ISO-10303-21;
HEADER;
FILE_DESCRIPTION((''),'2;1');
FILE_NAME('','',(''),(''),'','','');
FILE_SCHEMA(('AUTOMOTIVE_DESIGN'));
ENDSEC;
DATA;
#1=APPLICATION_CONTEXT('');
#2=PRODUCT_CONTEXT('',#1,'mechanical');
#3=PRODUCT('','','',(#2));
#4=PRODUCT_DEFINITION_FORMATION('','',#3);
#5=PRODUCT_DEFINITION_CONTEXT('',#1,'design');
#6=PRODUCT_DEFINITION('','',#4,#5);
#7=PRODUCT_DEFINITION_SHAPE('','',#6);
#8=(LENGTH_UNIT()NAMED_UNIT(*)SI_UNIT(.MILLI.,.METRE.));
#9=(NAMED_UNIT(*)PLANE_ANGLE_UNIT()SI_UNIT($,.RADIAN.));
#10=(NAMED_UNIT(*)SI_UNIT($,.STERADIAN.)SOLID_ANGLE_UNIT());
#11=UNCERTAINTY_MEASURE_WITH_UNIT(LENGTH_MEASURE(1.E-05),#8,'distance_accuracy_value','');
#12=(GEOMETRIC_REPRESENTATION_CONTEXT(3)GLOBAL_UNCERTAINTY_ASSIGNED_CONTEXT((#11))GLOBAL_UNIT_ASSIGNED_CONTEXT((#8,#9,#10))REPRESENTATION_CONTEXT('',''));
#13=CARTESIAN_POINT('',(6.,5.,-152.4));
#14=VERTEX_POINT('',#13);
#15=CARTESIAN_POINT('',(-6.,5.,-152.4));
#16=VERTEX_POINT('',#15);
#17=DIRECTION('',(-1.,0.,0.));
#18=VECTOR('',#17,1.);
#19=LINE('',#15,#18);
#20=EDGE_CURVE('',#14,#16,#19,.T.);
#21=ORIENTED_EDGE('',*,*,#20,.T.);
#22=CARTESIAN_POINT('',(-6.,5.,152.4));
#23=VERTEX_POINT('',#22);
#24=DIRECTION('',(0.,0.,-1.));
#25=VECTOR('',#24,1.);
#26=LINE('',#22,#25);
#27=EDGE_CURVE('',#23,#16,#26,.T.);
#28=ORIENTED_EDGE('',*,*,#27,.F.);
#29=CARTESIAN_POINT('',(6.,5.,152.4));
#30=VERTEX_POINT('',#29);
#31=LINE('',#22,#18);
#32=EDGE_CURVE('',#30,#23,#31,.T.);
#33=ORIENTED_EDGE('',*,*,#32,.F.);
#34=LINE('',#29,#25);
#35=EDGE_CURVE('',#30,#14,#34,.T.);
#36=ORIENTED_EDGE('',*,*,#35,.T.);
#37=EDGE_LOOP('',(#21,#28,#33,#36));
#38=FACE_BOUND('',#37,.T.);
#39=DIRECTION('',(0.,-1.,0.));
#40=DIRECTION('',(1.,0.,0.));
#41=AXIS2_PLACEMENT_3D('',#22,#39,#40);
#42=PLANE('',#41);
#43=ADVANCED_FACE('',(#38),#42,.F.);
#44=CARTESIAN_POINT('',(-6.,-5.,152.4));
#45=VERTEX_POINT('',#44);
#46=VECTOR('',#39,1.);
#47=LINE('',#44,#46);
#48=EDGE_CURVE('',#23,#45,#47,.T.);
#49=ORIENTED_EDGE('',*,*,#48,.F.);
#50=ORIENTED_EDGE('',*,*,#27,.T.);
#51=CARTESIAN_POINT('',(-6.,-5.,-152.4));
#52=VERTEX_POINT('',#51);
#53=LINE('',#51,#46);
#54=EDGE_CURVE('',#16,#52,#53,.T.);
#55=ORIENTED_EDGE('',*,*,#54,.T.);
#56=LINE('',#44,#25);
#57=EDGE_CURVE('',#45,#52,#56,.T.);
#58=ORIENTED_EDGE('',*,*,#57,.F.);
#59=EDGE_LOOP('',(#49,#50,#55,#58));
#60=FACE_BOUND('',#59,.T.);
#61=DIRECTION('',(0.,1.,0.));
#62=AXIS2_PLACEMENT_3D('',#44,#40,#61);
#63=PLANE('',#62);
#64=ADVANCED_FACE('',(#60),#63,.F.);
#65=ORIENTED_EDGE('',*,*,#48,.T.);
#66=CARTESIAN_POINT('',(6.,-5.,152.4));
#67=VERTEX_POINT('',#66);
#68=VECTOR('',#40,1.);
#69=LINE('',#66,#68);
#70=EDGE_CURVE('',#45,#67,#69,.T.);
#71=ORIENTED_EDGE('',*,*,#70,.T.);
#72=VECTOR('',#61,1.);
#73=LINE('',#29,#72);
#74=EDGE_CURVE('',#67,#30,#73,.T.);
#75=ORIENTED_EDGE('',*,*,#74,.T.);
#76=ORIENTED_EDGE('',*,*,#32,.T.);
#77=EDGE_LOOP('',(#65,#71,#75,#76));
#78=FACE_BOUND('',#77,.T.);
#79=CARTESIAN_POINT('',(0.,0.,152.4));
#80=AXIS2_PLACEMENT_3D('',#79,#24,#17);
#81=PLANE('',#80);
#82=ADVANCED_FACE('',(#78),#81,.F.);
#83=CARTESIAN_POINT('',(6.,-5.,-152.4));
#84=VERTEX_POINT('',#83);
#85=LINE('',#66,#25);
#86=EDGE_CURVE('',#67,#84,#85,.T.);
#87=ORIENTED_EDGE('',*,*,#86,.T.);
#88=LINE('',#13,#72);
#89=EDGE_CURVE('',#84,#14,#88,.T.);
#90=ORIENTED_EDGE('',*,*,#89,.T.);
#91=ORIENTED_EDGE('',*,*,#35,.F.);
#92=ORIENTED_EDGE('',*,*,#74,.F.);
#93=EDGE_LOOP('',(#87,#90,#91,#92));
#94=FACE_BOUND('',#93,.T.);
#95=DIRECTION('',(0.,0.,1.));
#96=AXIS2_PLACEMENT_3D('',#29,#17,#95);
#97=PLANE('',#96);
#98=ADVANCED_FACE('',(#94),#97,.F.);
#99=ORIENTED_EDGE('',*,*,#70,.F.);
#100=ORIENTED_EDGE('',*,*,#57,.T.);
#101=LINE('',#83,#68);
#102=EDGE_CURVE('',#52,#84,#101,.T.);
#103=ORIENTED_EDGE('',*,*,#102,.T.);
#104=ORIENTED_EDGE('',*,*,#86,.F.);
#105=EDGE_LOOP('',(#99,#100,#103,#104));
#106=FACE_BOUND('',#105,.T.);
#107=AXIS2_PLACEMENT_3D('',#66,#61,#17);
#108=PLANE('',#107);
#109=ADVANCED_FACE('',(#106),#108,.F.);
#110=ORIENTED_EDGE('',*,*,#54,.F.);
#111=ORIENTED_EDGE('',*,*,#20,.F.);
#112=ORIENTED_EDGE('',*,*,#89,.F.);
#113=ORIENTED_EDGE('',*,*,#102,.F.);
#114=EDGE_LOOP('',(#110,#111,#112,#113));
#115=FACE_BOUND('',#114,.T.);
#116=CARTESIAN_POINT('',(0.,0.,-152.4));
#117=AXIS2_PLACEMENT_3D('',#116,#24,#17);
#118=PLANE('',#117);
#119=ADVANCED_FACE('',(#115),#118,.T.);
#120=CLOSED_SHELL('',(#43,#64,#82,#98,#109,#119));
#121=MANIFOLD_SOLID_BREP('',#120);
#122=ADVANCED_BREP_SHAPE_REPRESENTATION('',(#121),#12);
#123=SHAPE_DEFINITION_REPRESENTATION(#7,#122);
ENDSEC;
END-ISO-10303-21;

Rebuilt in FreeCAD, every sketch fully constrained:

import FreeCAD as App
import Part
import Sketcher
from FreeCAD import Vector
Q = App.Units.Quantity


def add_polygon(sketch, points):
    """Adds a closed chain of lines whose ends are joined by coincident constraints."""
    first, n = sketch.GeometryCount, len(points)
    for a, b in zip(points, points[1:] + points[:1]):
        sketch.addGeometry(Part.LineSegment(App.Vector(*a, 0), App.Vector(*b, 0)), False)
    for i in range(n):
        sketch.addConstraint(Sketcher.Constraint("Coincident", first + i, 2, first + (i + 1) % n, 1))

doc = App.newDocument("Part")
params = doc.addObject("Spreadsheet::Sheet", "Params")
for row, (alias, value) in enumerate([
    ("sketch1_width", "12 mm"),
    ("sketch1_height", "10 mm"),
    ("pad1_length", "304.8 mm"),
], start=1):
    params.set(f"A{row}", alias)
    params.set(f"B{row}", "=" + value)
    params.setAlias(f"B{row}", alias)

body = doc.addObject("PartDesign::Body", "Body")

# Sketch on XY plane
sketch1 = body.newObject("Sketcher::SketchObject", "Sketch")
sketch1.AttachmentSupport = (doc.getObject("XY_Plane"), [""])
sketch1.MapMode = "FlatFace"
add_polygon(sketch1, [(-6, 5), (-6, -5), (6, -5), (6, 5)])  # lines 0-3
sketch1.addConstraint([
    Sketcher.Constraint("Vertical", 0),
    Sketcher.Constraint("Horizontal", 1),
    Sketcher.Constraint("Vertical", 2),
    Sketcher.Constraint("Horizontal", 3),
    Sketcher.Constraint("Symmetric", 0, 2, 2, 2, -1, 1),
    Sketcher.Constraint("DistanceX", 1, 1, 1, 2, Q("12 mm")),
    Sketcher.Constraint("DistanceY", 0, 2, 0, 1, Q("10 mm")),
])
sketch1.setExpression("Constraints[9]", "Params.sketch1_width")
sketch1.setExpression("Constraints[10]", "Params.sketch1_height")
pad1 = body.newObject("PartDesign::Pad", "Pad")
pad1.Profile = sketch1
pad1.setExpression("Length", "Params.pad1_length")
pad1.Midplane = True

doc.recompute()
